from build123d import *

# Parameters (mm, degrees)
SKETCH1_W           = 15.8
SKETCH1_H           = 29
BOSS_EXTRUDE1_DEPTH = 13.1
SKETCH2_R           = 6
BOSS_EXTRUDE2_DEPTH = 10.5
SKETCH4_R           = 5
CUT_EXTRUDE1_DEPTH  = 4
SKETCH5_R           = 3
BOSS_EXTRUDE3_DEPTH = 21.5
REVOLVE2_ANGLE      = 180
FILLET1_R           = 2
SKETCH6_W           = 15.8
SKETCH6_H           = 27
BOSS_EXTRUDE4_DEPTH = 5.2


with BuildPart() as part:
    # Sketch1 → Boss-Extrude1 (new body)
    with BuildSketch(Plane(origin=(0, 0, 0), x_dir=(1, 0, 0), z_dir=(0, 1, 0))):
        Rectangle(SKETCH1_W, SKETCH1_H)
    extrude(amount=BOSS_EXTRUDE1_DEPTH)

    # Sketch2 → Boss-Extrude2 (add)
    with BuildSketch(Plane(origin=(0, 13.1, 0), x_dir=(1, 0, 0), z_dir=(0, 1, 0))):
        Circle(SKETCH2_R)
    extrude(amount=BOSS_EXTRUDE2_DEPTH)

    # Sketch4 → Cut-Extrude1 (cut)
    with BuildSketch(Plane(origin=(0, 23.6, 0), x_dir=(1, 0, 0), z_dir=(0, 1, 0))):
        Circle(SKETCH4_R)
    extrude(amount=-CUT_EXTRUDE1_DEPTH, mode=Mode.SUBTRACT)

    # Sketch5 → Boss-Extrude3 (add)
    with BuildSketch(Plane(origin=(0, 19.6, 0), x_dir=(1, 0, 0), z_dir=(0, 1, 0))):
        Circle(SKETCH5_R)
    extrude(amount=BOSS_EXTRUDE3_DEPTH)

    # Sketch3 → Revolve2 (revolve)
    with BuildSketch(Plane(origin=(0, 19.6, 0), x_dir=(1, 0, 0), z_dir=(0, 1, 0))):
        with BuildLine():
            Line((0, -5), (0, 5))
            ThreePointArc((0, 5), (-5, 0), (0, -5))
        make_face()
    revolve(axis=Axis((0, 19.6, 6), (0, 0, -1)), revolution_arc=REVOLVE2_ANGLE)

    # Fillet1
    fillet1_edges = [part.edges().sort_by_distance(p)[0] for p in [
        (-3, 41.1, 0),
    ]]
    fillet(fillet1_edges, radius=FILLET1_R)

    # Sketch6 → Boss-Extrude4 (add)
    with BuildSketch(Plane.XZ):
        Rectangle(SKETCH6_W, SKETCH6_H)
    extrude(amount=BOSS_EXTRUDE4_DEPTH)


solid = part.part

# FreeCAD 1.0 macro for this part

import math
import FreeCAD as App
import Part
import Sketcher
from FreeCAD import Vector


def edges_at(feature, points):
    """Names of the edges that pass closest to the given points."""
    edges = feature.Shape.Edges
    near = lambda p: min(range(len(edges)), key=lambda i: edges[i].distToShape(Part.Vertex(*p))[0])
    return sorted({f"Edge{near(p) + 1}" for p in points})


def add_polygon(sketch, points):
    """Adds a closed chain of lines whose ends are joined by coincident constraints."""
    first, n = sketch.GeometryCount, len(points)
    for a, b in zip(points, points[1:] + points[:1]):
        sketch.addGeometry(Part.LineSegment(App.Vector(*a, 0), App.Vector(*b, 0)), False)
    for i in range(n):
        sketch.addConstraint(Sketcher.Constraint("Coincident", first + i, 2, first + (i + 1) % n, 1))

doc = App.newDocument("Part")
body = doc.addObject("PartDesign::Body", "Body")

sketch1 = body.newObject("Sketcher::SketchObject", "Sketch")
sketch1.AttachmentSupport = (doc.getObject("XZ_Plane"), [""])
sketch1.MapMode = "FlatFace"
add_polygon(sketch1, [(-7.9, -14.5), (-7.9, 14.5), (7.9, 14.5), (7.9, -14.5)])
sketch1.addConstraint(Sketcher.Constraint("Vertical", 0))
sketch1.addConstraint(Sketcher.Constraint("Horizontal", 1))
sketch1.addConstraint(Sketcher.Constraint("Vertical", 2))
sketch1.addConstraint(Sketcher.Constraint("Horizontal", 3))
sketch1.addConstraint(Sketcher.Constraint("Symmetric", 0, 2, 2, 2, -1, 1))
sketch1.addConstraint(Sketcher.Constraint("DistanceY", 0, 1, 0, 2, 29.0))
sketch1.addConstraint(Sketcher.Constraint("DistanceX", 1, 1, 1, 2, 15.8))
pad1 = body.newObject("PartDesign::Pad", "Pad")
pad1.Profile = sketch1
pad1.Length = 13.1
pad1.Reversed = True

sketch2 = body.newObject("Sketcher::SketchObject", "Sketch001")
sketch2.AttachmentSupport = (doc.getObject("XZ_Plane"), [""])
sketch2.MapMode = "FlatFace"
sketch2.AttachmentOffset = App.Placement(Vector(0, 0, -13.1), App.Rotation())
sketch2.addGeometry(Part.Circle(Vector(0, 0, 0), Vector(0, 0, 1), 6), False)
sketch2.addConstraint(Sketcher.Constraint("Coincident", 0, 3, -1, 1))
sketch2.addConstraint(Sketcher.Constraint("Diameter", 0, 12.0))
pad2 = body.newObject("PartDesign::Pad", "Pad001")
pad2.Profile = sketch2
pad2.Length = 10.5
pad2.Reversed = True

sketch3 = body.newObject("Sketcher::SketchObject", "Sketch002")
sketch3.AttachmentSupport = (doc.getObject("XZ_Plane"), [""])
sketch3.MapMode = "FlatFace"
sketch3.AttachmentOffset = App.Placement(Vector(0, 0, -23.6), App.Rotation())
sketch3.addGeometry(Part.Circle(Vector(0, 0, 0), Vector(0, 0, 1), 5), False)
sketch3.addConstraint(Sketcher.Constraint("Coincident", 0, 3, -1, 1))
sketch3.addConstraint(Sketcher.Constraint("Diameter", 0, 10.0))
pocket1 = body.newObject("PartDesign::Pocket", "Pocket")
pocket1.Profile = sketch3
pocket1.Length = 4
pocket1.Reversed = True

sketch4 = body.newObject("Sketcher::SketchObject", "Sketch003")
sketch4.AttachmentSupport = (doc.getObject("XZ_Plane"), [""])
sketch4.MapMode = "FlatFace"
sketch4.AttachmentOffset = App.Placement(Vector(0, 0, -19.6), App.Rotation())
sketch4.addGeometry(Part.Circle(Vector(0, 0, 0), Vector(0, 0, 1), 3), False)
sketch4.addConstraint(Sketcher.Constraint("Coincident", 0, 3, -1, 1))
sketch4.addConstraint(Sketcher.Constraint("Diameter", 0, 6.0))
pad3 = body.newObject("PartDesign::Pad", "Pad002")
pad3.Profile = sketch4
pad3.Length = 21.5
pad3.Reversed = True

sketch5 = body.newObject("Sketcher::SketchObject", "Sketch004")
sketch5.AttachmentSupport = (doc.getObject("XZ_Plane"), [""])
sketch5.MapMode = "FlatFace"
sketch5.AttachmentOffset = App.Placement(Vector(0, 0, -19.6), App.Rotation())
sketch5.addGeometry(Part.LineSegment(Vector(0, 5, 0), Vector(0, -5, 0)), False)
sketch5.addGeometry(Part.ArcOfCircle(Part.Circle(Vector(0, 0, 0), Vector(0, 0, 1), 5), math.radians(90), math.radians(270)), False)
sketch5.addConstraint(Sketcher.Constraint("Coincident", 0, 1, 1, 1))
sketch5.addConstraint(Sketcher.Constraint("Coincident", 1, 2, 0, 2))
sketch5.addConstraint(Sketcher.Constraint("Vertical", 0))
sketch5.addConstraint(Sketcher.Constraint("Coincident", 1, 3, -1, 1))
sketch5.addConstraint(Sketcher.Constraint("PointOnObject", 0, 1, -2))
sketch5.addConstraint(Sketcher.Constraint("Radius", 1, 5.0))
revolution = body.newObject("PartDesign::Revolution", "Revolution")
revolution.Profile = sketch5
revolution.ReferenceAxis = (sketch5, ["V_Axis"])
revolution.Angle = 180
revolution.Reversed = True
doc.recompute()

fillet = body.newObject("PartDesign::Fillet", "Fillet")
fillet.Base = (revolution, edges_at(revolution, [(-3, 41.1, 0)]))
fillet.Radius = 2

sketch6 = body.newObject("Sketcher::SketchObject", "Sketch005")
sketch6.AttachmentSupport = (doc.getObject("XZ_Plane"), [""])
sketch6.MapMode = "FlatFace"
add_polygon(sketch6, [(-7.9, 13.5), (-7.9, -13.5), (7.9, -13.5), (7.9, 13.5)])
sketch6.addConstraint(Sketcher.Constraint("Vertical", 0))
sketch6.addConstraint(Sketcher.Constraint("Horizontal", 1))
sketch6.addConstraint(Sketcher.Constraint("Vertical", 2))
sketch6.addConstraint(Sketcher.Constraint("Horizontal", 3))
sketch6.addConstraint(Sketcher.Constraint("Symmetric", 0, 2, 2, 2, -1, 1))
sketch6.addConstraint(Sketcher.Constraint("DistanceY", 0, 2, 0, 1, 27.0))
sketch6.addConstraint(Sketcher.Constraint("DistanceX", 1, 1, 1, 2, 15.8))
pad4 = body.newObject("PartDesign::Pad", "Pad003")
pad4.Profile = sketch6
pad4.Length = 5.2

doc.recompute()
